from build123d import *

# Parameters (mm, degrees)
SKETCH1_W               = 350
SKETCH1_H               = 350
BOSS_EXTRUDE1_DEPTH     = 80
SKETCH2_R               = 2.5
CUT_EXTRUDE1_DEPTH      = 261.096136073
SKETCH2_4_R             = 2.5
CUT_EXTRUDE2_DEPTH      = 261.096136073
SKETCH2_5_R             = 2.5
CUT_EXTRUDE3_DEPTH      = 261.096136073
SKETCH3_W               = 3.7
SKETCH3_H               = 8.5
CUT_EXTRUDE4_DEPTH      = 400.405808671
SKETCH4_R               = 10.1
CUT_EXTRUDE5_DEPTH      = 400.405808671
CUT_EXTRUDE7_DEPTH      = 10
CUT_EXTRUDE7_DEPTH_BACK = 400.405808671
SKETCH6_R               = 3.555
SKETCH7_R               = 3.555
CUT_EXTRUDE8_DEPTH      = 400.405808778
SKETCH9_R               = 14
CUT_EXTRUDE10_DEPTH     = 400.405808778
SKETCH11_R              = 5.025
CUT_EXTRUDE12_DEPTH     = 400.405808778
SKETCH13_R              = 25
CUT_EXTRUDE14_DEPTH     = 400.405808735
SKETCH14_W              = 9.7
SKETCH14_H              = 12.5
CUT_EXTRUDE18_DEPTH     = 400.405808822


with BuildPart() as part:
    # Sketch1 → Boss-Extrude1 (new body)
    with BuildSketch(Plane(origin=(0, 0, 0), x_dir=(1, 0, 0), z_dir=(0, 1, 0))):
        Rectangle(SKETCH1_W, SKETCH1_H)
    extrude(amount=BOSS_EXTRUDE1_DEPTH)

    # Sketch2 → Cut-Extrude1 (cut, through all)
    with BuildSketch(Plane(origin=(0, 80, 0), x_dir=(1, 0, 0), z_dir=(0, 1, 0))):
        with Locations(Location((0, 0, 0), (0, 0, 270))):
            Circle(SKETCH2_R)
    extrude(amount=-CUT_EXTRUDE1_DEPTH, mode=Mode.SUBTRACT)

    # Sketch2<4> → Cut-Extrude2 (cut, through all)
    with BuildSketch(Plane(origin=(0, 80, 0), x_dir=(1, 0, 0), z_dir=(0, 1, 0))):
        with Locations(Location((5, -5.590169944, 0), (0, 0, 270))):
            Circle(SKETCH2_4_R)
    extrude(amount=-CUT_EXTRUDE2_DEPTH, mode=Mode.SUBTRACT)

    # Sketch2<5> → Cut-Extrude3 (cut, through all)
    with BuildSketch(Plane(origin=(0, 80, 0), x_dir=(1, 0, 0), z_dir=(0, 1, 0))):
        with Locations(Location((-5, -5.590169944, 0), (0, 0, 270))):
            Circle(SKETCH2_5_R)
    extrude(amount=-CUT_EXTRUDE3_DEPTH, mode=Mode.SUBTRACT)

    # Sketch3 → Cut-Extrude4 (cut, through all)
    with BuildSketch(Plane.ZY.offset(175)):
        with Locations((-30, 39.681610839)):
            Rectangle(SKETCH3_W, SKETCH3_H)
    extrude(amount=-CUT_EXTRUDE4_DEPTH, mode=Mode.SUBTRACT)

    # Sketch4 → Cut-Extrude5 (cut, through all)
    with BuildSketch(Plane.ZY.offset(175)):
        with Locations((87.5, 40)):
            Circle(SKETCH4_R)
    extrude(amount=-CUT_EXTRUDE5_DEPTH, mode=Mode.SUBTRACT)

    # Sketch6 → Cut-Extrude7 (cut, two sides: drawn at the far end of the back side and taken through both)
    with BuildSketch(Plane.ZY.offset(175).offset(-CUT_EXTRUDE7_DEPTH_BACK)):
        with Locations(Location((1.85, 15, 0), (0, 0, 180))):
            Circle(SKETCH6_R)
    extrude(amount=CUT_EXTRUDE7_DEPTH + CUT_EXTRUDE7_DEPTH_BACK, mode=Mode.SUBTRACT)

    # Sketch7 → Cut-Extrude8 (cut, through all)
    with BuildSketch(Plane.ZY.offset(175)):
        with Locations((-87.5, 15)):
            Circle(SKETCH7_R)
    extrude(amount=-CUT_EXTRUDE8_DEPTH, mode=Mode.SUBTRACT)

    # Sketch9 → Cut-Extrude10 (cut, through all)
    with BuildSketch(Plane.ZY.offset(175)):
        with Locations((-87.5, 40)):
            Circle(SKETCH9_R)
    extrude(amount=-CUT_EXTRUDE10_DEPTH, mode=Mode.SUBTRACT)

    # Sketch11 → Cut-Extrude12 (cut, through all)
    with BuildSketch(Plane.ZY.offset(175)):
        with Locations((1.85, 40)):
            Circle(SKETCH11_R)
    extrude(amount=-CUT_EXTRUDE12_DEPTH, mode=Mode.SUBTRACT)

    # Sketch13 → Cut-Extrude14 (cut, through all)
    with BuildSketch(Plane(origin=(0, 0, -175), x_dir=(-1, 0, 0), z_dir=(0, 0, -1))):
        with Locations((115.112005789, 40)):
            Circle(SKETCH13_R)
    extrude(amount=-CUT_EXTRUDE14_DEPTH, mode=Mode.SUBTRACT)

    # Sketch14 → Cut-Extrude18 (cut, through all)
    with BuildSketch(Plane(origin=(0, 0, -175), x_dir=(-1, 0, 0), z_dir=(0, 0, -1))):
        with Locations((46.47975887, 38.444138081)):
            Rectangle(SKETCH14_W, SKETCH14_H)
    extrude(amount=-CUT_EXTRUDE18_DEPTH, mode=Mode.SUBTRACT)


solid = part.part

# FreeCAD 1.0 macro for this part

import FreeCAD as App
import Part
import Sketcher

V = App.Vector
Q = App.Units.Quantity


def add_polygon(sketch, points):
    """Adds a closed chain of lines whose ends are joined by coincident constraints."""
    first, n = sketch.GeometryCount, len(points)
    for a, b in zip(points, points[1:] + points[:1]):
        sketch.addGeometry(Part.LineSegment(App.Vector(*a, 0), App.Vector(*b, 0)), False)
    for i in range(n):
        sketch.addConstraint(Sketcher.Constraint("Coincident", first + i, 2, first + (i + 1) % n, 1))

doc = App.newDocument("Part")
body = doc.addObject("PartDesign::Body", "Body")

# Sketch on XZ plane
sketch1 = doc.addObject("Sketcher::SketchObject", "Sketch")
body.addObject(sketch1)
sketch1.AttachmentSupport = (doc.XZ_Plane, [""])
sketch1.MapMode = "FlatFace"
add_polygon(sketch1, [(-175, -175), (-175, 175), (175, 175), (175, -175)])  # lines 0-3
sketch1.addConstraint(Sketcher.Constraint("Vertical", 0))
sketch1.addConstraint(Sketcher.Constraint("Horizontal", 1))
sketch1.addConstraint(Sketcher.Constraint("Vertical", 2))
sketch1.addConstraint(Sketcher.Constraint("Horizontal", 3))
sketch1.addConstraint(Sketcher.Constraint("Symmetric", 0, 2, 2, 2, -1, 1))
sketch1.addConstraint(Sketcher.Constraint("Equal", 3, 0))
sketch1.addConstraint(Sketcher.Constraint("DistanceX", 1, 1, 1, 2, Q("350 mm")))
pad1 = doc.addObject("PartDesign::Pad", "Pad")
body.addObject(pad1)
pad1.Profile = sketch1
pad1.Length = 80
pad1.Reversed = True

# Sketch on XZ plane
sketch2 = doc.addObject("Sketcher::SketchObject", "Sketch001")
body.addObject(sketch2)
sketch2.AttachmentSupport = (doc.XZ_Plane, [""])
sketch2.MapMode = "FlatFace"
sketch2.AttachmentOffset = App.Placement(V(0, 0, -80), App.Rotation())
sketch2.addGeometry(Part.Circle(V(0, 0, 0), V(0, 0, 1), 2.5), False)
sketch2.addConstraint(Sketcher.Constraint("Coincident", 0, 3, -1, 1))
sketch2.addConstraint(Sketcher.Constraint("Diameter", 0, Q("5 mm")))
pocket1 = doc.addObject("PartDesign::Pocket", "Pocket")
body.addObject(pocket1)
pocket1.Profile = sketch2
pocket1.Type = "ThroughAll"
pocket1.Reversed = True

# Sketch on XZ plane
sketch3 = doc.addObject("Sketcher::SketchObject", "Sketch002")
body.addObject(sketch3)
sketch3.AttachmentSupport = (doc.XZ_Plane, [""])
sketch3.MapMode = "FlatFace"
sketch3.AttachmentOffset = App.Placement(V(0, 0, -80), App.Rotation())
sketch3.addGeometry(Part.Circle(V(5, 5.6, 0), V(0, 0, 1), 2.5), False)
sketch3.addConstraint(Sketcher.Constraint("Diameter", 0, Q("5 mm")))
sketch3.addConstraint(Sketcher.Constraint("DistanceX", -1, 1, 0, 3, Q("5 mm")))
sketch3.addConstraint(Sketcher.Constraint("DistanceY", -1, 1, 0, 3, Q("5.59017 mm")))
pocket2 = doc.addObject("PartDesign::Pocket", "Pocket001")
body.addObject(pocket2)
pocket2.Profile = sketch3
pocket2.Type = "ThroughAll"
pocket2.Reversed = True

# Sketch on XZ plane
sketch4 = doc.addObject("Sketcher::SketchObject", "Sketch003")
body.addObject(sketch4)
sketch4.AttachmentSupport = (doc.XZ_Plane, [""])
sketch4.MapMode = "FlatFace"
sketch4.AttachmentOffset = App.Placement(V(0, 0, -80), App.Rotation())
sketch4.addGeometry(Part.Circle(V(-5, 5.6, 0), V(0, 0, 1), 2.5), False)
sketch4.addConstraint(Sketcher.Constraint("Diameter", 0, Q("5 mm")))
sketch4.addConstraint(Sketcher.Constraint("DistanceX", 0, 3, -1, 1, Q("5 mm")))
sketch4.addConstraint(Sketcher.Constraint("DistanceY", -1, 1, 0, 3, Q("5.59017 mm")))
pocket3 = doc.addObject("PartDesign::Pocket", "Pocket002")
body.addObject(pocket3)
pocket3.Profile = sketch4
pocket3.Type = "ThroughAll"
pocket3.Reversed = True

# Sketch on YZ plane
sketch5 = doc.addObject("Sketcher::SketchObject", "Sketch004")
body.addObject(sketch5)
sketch5.AttachmentSupport = (doc.YZ_Plane, [""])
sketch5.MapMode = "FlatFace"
sketch5.AttachmentOffset = App.Placement(V(0, 0, -175), App.Rotation())
add_polygon(sketch5, [(43.9, -31.9), (35.4, -31.9), (35.4, -28.1), (43.9, -28.1)])  # lines 0-3
sketch5.addConstraint(Sketcher.Constraint("Horizontal", 0))
sketch5.addConstraint(Sketcher.Constraint("Vertical", 1))
sketch5.addConstraint(Sketcher.Constraint("Horizontal", 2))
sketch5.addConstraint(Sketcher.Constraint("Vertical", 3))
sketch5.addConstraint(Sketcher.Constraint("DistanceX", 0, 2, 0, 1, Q("8.5 mm")))
sketch5.addConstraint(Sketcher.Constraint("DistanceY", 1, 1, 1, 2, Q("3.7 mm")))
sketch5.addConstraint(Sketcher.Constraint("DistanceY", 0, 2, -1, 1, Q("31.85 mm")))
sketch5.addConstraint(Sketcher.Constraint("DistanceX", -1, 1, 0, 2, Q("35.431611 mm")))
pocket4 = doc.addObject("PartDesign::Pocket", "Pocket003")
body.addObject(pocket4)
pocket4.Profile = sketch5
pocket4.Type = "ThroughAll"
pocket4.Reversed = True

# Sketch on YZ plane
sketch6 = doc.addObject("Sketcher::SketchObject", "Sketch005")
body.addObject(sketch6)
sketch6.AttachmentSupport = (doc.YZ_Plane, [""])
sketch6.MapMode = "FlatFace"
sketch6.AttachmentOffset = App.Placement(V(0, 0, -175), App.Rotation())
sketch6.addGeometry(Part.Circle(V(40, 88, 0), V(0, 0, 1), 10), False)
sketch6.addConstraint(Sketcher.Constraint("Diameter", 0, Q("20.2 mm")))
sketch6.addConstraint(Sketcher.Constraint("DistanceX", -1, 1, 0, 3, Q("40 mm")))
sketch6.addConstraint(Sketcher.Constraint("DistanceY", -1, 1, 0, 3, Q("87.5 mm")))
pocket5 = doc.addObject("PartDesign::Pocket", "Pocket004")
body.addObject(pocket5)
pocket5.Profile = sketch6
pocket5.Type = "ThroughAll"
pocket5.Reversed = True

# Sketch on YZ plane
sketch7 = doc.addObject("Sketcher::SketchObject", "Sketch006")
body.addObject(sketch7)
sketch7.AttachmentSupport = (doc.YZ_Plane, [""])
sketch7.MapMode = "FlatFace"
sketch7.AttachmentOffset = App.Placement(V(0, 0, -175), App.Rotation())
sketch7.addGeometry(Part.Circle(V(15, 1.9, 0), V(0, 0, 1), 3.6), False)
sketch7.addConstraint(Sketcher.Constraint("Diameter", 0, Q("7.11 mm")))
sketch7.addConstraint(Sketcher.Constraint("DistanceX", -1, 1, 0, 3, Q("15 mm")))
sketch7.addConstraint(Sketcher.Constraint("DistanceY", -1, 1, 0, 3, Q("1.85 mm")))
pocket6 = doc.addObject("PartDesign::Pocket", "Pocket005")
body.addObject(pocket6)
pocket6.Profile = sketch7
pocket6.Type = "ThroughAll"
pocket6.Midplane = True

# Sketch on YZ plane
sketch8 = doc.addObject("Sketcher::SketchObject", "Sketch007")
body.addObject(sketch8)
sketch8.AttachmentSupport = (doc.YZ_Plane, [""])
sketch8.MapMode = "FlatFace"
sketch8.AttachmentOffset = App.Placement(V(0, 0, -175), App.Rotation())
sketch8.addGeometry(Part.Circle(V(15, -87.5, 0), V(0, 0, 1), 3.6), False)
sketch8.addConstraint(Sketcher.Constraint("Diameter", 0, Q("7.11 mm")))
sketch8.addConstraint(Sketcher.Constraint("DistanceX", -1, 1, 0, 3, Q("15 mm")))
sketch8.addConstraint(Sketcher.Constraint("DistanceY", 0, 3, -1, 1, Q("87.5 mm")))
pocket7 = doc.addObject("PartDesign::Pocket", "Pocket006")
body.addObject(pocket7)
pocket7.Profile = sketch8
pocket7.Type = "ThroughAll"
pocket7.Reversed = True

# Sketch on YZ plane
sketch9 = doc.addObject("Sketcher::SketchObject", "Sketch008")
body.addObject(sketch9)
sketch9.AttachmentSupport = (doc.YZ_Plane, [""])
sketch9.MapMode = "FlatFace"
sketch9.AttachmentOffset = App.Placement(V(0, 0, -175), App.Rotation())
sketch9.addGeometry(Part.Circle(V(40, -88, 0), V(0, 0, 1), 14), False)
sketch9.addConstraint(Sketcher.Constraint("Diameter", 0, Q("28 mm")))
sketch9.addConstraint(Sketcher.Constraint("DistanceX", -1, 1, 0, 3, Q("40 mm")))
sketch9.addConstraint(Sketcher.Constraint("DistanceY", 0, 3, -1, 1, Q("87.5 mm")))
pocket8 = doc.addObject("PartDesign::Pocket", "Pocket007")
body.addObject(pocket8)
pocket8.Profile = sketch9
pocket8.Type = "ThroughAll"
pocket8.Reversed = True

# Sketch on YZ plane
sketch10 = doc.addObject("Sketcher::SketchObject", "Sketch009")
body.addObject(sketch10)
sketch10.AttachmentSupport = (doc.YZ_Plane, [""])
sketch10.MapMode = "FlatFace"
sketch10.AttachmentOffset = App.Placement(V(0, 0, -175), App.Rotation())
sketch10.addGeometry(Part.Circle(V(40, 2, 0), V(0, 0, 1), 5), False)
sketch10.addConstraint(Sketcher.Constraint("Diameter", 0, Q("10.05 mm")))
sketch10.addConstraint(Sketcher.Constraint("DistanceX", -1, 1, 0, 3, Q("40 mm")))
sketch10.addConstraint(Sketcher.Constraint("DistanceY", -1, 1, 0, 3, Q("1.85 mm")))
pocket9 = doc.addObject("PartDesign::Pocket", "Pocket008")
body.addObject(pocket9)
pocket9.Profile = sketch10
pocket9.Type = "ThroughAll"
pocket9.Reversed = True

# Sketch on XY plane
sketch11 = doc.addObject("Sketcher::SketchObject", "Sketch010")
body.addObject(sketch11)
sketch11.AttachmentSupport = (doc.XY_Plane, [""])
sketch11.MapMode = "FlatFace"
sketch11.AttachmentOffset = App.Placement(V(0, 0, -175), App.Rotation())
sketch11.addGeometry(Part.Circle(V(-115, 40, 0), V(0, 0, 1), 25), False)
sketch11.addConstraint(Sketcher.Constraint("Diameter", 0, Q("50 mm")))
sketch11.addConstraint(Sketcher.Constraint("DistanceY", -1, 1, 0, 3, Q("40 mm")))
sketch11.addConstraint(Sketcher.Constraint("DistanceX", 0, 3, -1, 1, Q("115.112006 mm")))
pocket10 = doc.addObject("PartDesign::Pocket", "Pocket009")
body.addObject(pocket10)
pocket10.Profile = sketch11
pocket10.Type = "ThroughAll"
pocket10.Reversed = True

# Sketch on XY plane
sketch12 = doc.addObject("Sketcher::SketchObject", "Sketch011")
body.addObject(sketch12)
sketch12.AttachmentSupport = (doc.XY_Plane, [""])
sketch12.MapMode = "FlatFace"
sketch12.AttachmentOffset = App.Placement(V(0, 0, -175), App.Rotation())
add_polygon(sketch12, [(-42, 45), (-42, 32), (-51, 32), (-51, 45)])  # lines 0-3
sketch12.addConstraint(Sketcher.Constraint("Vertical", 0))
sketch12.addConstraint(Sketcher.Constraint("Horizontal", 1))
sketch12.addConstraint(Sketcher.Constraint("Vertical", 2))
sketch12.addConstraint(Sketcher.Constraint("Horizontal", 3))
sketch12.addConstraint(Sketcher.Constraint("DistanceX", 1, 2, 1, 1, Q("9.7 mm")))
sketch12.addConstraint(Sketcher.Constraint("DistanceY", 0, 2, 0, 1, Q("12.5 mm")))
sketch12.addConstraint(Sketcher.Constraint("DistanceX", 0, 2, -1, 1, Q("41.629759 mm")))
sketch12.addConstraint(Sketcher.Constraint("DistanceY", -1, 1, 0, 2, Q("32.194138 mm")))
pocket11 = doc.addObject("PartDesign::Pocket", "Pocket010")
body.addObject(pocket11)
pocket11.Profile = sketch12
pocket11.Type = "ThroughAll"
pocket11.Reversed = True

doc.recompute()
